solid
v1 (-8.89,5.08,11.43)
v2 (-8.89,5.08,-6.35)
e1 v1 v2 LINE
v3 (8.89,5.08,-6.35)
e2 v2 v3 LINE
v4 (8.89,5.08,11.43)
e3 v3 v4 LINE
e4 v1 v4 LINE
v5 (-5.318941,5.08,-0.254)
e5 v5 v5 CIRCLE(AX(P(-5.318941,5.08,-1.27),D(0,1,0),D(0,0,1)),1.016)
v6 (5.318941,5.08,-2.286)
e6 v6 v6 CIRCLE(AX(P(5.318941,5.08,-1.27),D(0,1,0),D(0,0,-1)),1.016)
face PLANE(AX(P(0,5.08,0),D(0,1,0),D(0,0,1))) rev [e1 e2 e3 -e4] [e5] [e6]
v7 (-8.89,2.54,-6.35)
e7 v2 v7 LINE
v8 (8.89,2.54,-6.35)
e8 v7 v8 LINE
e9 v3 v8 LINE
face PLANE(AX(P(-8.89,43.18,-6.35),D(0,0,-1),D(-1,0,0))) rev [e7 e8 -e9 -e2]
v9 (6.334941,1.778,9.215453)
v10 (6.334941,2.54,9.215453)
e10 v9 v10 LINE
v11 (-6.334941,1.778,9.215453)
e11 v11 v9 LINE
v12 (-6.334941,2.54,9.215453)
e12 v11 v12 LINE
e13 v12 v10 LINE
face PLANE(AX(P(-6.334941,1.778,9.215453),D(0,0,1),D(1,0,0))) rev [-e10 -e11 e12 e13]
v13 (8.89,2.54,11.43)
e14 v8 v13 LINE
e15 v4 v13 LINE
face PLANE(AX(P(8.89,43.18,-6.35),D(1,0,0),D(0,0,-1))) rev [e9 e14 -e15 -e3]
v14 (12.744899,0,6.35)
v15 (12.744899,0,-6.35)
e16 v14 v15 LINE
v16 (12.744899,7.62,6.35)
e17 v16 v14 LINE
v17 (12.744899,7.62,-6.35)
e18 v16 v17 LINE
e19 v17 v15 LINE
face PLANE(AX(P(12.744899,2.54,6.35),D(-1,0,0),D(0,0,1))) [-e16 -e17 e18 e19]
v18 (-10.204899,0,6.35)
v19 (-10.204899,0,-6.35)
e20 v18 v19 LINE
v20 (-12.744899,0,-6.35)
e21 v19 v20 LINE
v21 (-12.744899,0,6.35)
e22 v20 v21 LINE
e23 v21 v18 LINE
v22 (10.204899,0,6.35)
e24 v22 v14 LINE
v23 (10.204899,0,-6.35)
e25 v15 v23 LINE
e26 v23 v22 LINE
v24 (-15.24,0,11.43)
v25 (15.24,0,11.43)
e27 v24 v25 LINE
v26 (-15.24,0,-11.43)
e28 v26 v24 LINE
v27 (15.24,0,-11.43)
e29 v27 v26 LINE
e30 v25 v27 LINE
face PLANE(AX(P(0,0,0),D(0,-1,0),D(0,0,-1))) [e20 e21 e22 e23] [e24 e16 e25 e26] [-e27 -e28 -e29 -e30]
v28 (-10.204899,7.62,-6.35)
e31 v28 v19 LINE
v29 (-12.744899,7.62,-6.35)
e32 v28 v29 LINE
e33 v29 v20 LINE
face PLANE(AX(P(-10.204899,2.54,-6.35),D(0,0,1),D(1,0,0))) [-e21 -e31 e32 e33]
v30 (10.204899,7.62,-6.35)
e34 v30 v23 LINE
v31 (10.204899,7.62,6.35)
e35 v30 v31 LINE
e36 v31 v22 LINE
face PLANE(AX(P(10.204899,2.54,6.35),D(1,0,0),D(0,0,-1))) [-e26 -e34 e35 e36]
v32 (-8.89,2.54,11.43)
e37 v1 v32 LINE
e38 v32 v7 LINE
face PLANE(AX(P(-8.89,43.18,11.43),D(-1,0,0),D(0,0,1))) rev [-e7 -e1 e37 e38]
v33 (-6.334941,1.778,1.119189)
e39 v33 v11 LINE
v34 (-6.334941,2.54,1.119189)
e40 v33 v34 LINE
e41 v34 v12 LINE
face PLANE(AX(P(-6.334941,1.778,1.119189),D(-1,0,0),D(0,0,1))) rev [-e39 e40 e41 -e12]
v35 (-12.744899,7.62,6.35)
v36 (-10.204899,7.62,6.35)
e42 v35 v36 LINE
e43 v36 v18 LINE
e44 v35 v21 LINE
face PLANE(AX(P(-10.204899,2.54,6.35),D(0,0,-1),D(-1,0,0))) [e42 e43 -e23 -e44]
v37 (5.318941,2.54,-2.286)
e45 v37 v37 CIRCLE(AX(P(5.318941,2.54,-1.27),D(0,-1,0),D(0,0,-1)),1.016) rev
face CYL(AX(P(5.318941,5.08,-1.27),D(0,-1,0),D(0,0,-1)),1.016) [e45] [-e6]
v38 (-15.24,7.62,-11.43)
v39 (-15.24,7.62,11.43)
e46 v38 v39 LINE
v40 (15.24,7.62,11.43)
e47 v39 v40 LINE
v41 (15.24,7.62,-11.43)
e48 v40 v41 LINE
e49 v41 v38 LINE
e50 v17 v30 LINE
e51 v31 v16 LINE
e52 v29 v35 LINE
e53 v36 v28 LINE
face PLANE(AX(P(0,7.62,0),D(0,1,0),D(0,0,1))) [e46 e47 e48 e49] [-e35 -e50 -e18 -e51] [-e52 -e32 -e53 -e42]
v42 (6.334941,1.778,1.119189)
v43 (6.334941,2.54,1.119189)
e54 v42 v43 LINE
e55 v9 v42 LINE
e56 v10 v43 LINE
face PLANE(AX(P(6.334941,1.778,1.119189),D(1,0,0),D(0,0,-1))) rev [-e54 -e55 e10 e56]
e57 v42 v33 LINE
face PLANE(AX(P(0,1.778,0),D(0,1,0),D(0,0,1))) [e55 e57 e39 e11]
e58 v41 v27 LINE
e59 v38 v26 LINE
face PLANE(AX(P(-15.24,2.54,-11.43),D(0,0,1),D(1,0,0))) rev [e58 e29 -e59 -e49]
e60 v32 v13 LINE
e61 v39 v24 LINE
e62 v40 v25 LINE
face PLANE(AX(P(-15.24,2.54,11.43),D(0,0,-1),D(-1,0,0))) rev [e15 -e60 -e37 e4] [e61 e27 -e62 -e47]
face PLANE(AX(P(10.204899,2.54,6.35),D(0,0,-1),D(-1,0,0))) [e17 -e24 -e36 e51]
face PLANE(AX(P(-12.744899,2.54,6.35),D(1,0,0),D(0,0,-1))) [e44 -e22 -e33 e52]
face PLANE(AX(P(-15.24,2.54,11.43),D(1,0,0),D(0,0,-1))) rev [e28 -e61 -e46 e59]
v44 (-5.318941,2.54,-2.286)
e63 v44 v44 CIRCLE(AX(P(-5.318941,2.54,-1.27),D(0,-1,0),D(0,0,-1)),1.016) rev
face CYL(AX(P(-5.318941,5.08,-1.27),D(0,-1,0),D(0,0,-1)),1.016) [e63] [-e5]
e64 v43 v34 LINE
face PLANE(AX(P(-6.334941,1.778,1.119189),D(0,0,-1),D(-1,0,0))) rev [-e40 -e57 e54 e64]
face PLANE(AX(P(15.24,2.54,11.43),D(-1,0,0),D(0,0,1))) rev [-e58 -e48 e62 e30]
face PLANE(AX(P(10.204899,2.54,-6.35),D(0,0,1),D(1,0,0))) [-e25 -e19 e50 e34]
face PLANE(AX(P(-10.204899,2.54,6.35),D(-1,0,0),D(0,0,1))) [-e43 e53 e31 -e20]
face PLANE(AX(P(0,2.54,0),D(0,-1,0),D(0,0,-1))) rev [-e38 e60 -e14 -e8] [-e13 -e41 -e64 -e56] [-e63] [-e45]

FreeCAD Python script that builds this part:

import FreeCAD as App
import Part
import Sketcher
Q = App.Units.Quantity

doc = App.newDocument("Part")
body = doc.addObject("PartDesign::Body", "Body")

# Sketch on XZ plane
sketch1 = body.newObject("Sketcher::SketchObject", "Sketch")
sketch1.AttachmentSupport = (doc.getObject("XZ_Plane"), [""])
sketch1.MapMode = "FlatFace"
sketch1.addGeometry([
    Part.LineSegment(App.Vector(-15.2, -11.4, 0), App.Vector(-15.2, 11.4, 0)),  # 0
    Part.LineSegment(App.Vector(-15.2, 11.4, 0), App.Vector(15.2, 11.4, 0)),  # 1
    Part.LineSegment(App.Vector(15.2, 11.4, 0), App.Vector(15.2, -11.4, 0)),  # 2
    Part.LineSegment(App.Vector(15.2, -11.4, 0), App.Vector(-15.2, -11.4, 0)),  # 3
    Part.LineSegment(App.Vector(-10.2, 6.3, 0), App.Vector(-12.7, 6.3, 0)),  # 4
    Part.LineSegment(App.Vector(-12.7, 6.3, 0), App.Vector(-12.7, -6.3, 0)),  # 5
    Part.LineSegment(App.Vector(-12.7, -6.3, 0), App.Vector(-10.2, -6.3, 0)),  # 6
    Part.LineSegment(App.Vector(-10.2, -6.3, 0), App.Vector(-10.2, 6.3, 0)),  # 7
    Part.LineSegment(App.Vector(12.7, 6.3, 0), App.Vector(10.2, 6.3, 0)),  # 8
    Part.LineSegment(App.Vector(10.2, 6.3, 0), App.Vector(10.2, -6.3, 0)),  # 9
    Part.LineSegment(App.Vector(10.2, -6.3, 0), App.Vector(12.7, -6.3, 0)),  # 10
    Part.LineSegment(App.Vector(12.7, -6.3, 0), App.Vector(12.7, 6.3, 0)),  # 11
], False)
sketch1.addConstraint([
    Sketcher.Constraint("Coincident", 0, 2, 1, 1),
    Sketcher.Constraint("Coincident", 1, 2, 2, 1),
    Sketcher.Constraint("Coincident", 2, 2, 3, 1),
    Sketcher.Constraint("Coincident", 3, 2, 0, 1),
    Sketcher.Constraint("Coincident", 4, 2, 5, 1),
    Sketcher.Constraint("Coincident", 5, 2, 6, 1),
    Sketcher.Constraint("Coincident", 6, 2, 7, 1),
    Sketcher.Constraint("Coincident", 7, 2, 4, 1),
    Sketcher.Constraint("Coincident", 8, 2, 9, 1),
    Sketcher.Constraint("Coincident", 9, 2, 10, 1),
    Sketcher.Constraint("Coincident", 10, 2, 11, 1),
    Sketcher.Constraint("Coincident", 11, 2, 8, 1),
    Sketcher.Constraint("Vertical", 0),
    Sketcher.Constraint("Horizontal", 1),
    Sketcher.Constraint("Vertical", 2),
    Sketcher.Constraint("Horizontal", 3),
    Sketcher.Constraint("Horizontal", 4),
    Sketcher.Constraint("Vertical", 5),
    Sketcher.Constraint("Horizontal", 6),
    Sketcher.Constraint("Vertical", 7),
    Sketcher.Constraint("Horizontal", 8),
    Sketcher.Constraint("Vertical", 9),
    Sketcher.Constraint("Horizontal", 10),
    Sketcher.Constraint("Vertical", 11),
    Sketcher.Constraint("Symmetric", 0, 2, 2, 2, -1, 1),
    Sketcher.Constraint("Symmetric", 6, 2, 8, 2, -1, 1),
    Sketcher.Constraint("Symmetric", 4, 2, 10, 2, -1, 1),
    Sketcher.Constraint("Horizontal", 7, 2, 8, 2),
    Sketcher.Constraint("DistanceX", 1, 1, 1, 2, Q("1.2 in")),
    Sketcher.Constraint("DistanceX", 4, 2, 4, 1, Q("0.1 in")),
    Sketcher.Constraint("DistanceY", 0, 1, 0, 2, Q("0.9 in")),
    Sketcher.Constraint("DistanceY", 5, 2, 5, 1, Q("0.5 in")),
    Sketcher.Constraint("DistanceX", 4, 2, -1, 1, 12.744899),
])
pad1 = body.newObject("PartDesign::Pad", "Pad")
pad1.Profile = sketch1
pad1.Length = Q("0.1 in")
pad1.Reversed = True

# Sketch on XZ plane
sketch2 = body.newObject("Sketcher::SketchObject", "Sketch001")
sketch2.AttachmentSupport = (doc.getObject("XZ_Plane"), [""])
sketch2.MapMode = "FlatFace"
sketch2.AttachmentOffset = App.Placement(App.Vector(0, 0, -0.1 * 25.4), App.Rotation())
sketch2.addGeometry([
    Part.Circle(App.Vector(-5.3, -1.3, 0), App.Vector(0, 0, 1), 1),
    Part.Circle(App.Vector(5.3, -1.3, 0), App.Vector(0, 0, 1), 1),
], False)
sketch2.addConstraint([
    Sketcher.Constraint("Equal", 0, 1),
    Sketcher.Constraint("Symmetric", 0, 3, 1, 3, -2),
    Sketcher.Constraint("Diameter", 0, Q("0.08 in")),
    Sketcher.Constraint("DistanceY", 0, 3, -1, 1, Q("0.05 in")),
    Sketcher.Constraint("DistanceX", 0, 3, -1, 1, 5.318941),
])
pad2 = body.newObject("PartDesign::Pad", "Pad001")
pad2.Profile = sketch2
pad2.Length = Q("0.1 in")
pad2.Reversed = True

# Sketch on XZ plane
sketch3 = body.newObject("Sketcher::SketchObject", "Sketch002")
sketch3.AttachmentSupport = (doc.getObject("XZ_Plane"), [""])
sketch3.MapMode = "FlatFace"
sketch3.AttachmentOffset = App.Placement(App.Vector(0, 0, -0.2 * 25.4), App.Rotation())
sketch3.addGeometry([
    Part.LineSegment(App.Vector(-15.2, -11.4, 0), App.Vector(-15.2, 11.4, 0)),  # 0
    Part.LineSegment(App.Vector(-15.2, 11.4, 0), App.Vector(15.2, 11.4, 0)),  # 1
    Part.LineSegment(App.Vector(15.2, 11.4, 0), App.Vector(15.2, -11.4, 0)),  # 2
    Part.LineSegment(App.Vector(15.2, -11.4, 0), App.Vector(-15.2, -11.4, 0)),  # 3
    Part.LineSegment(App.Vector(-10.2, 6.3, 0), App.Vector(-12.7, 6.3, 0)),  # 4
    Part.LineSegment(App.Vector(-12.7, 6.3, 0), App.Vector(-12.7, -6.3, 0)),  # 5
    Part.LineSegment(App.Vector(-12.7, -6.3, 0), App.Vector(-10.2, -6.3, 0)),  # 6
    Part.LineSegment(App.Vector(-10.2, -6.3, 0), App.Vector(-10.2, 6.3, 0)),  # 7
    Part.LineSegment(App.Vector(12.7, 6.3, 0), App.Vector(10.2, 6.3, 0)),  # 8
    Part.LineSegment(App.Vector(10.2, 6.3, 0), App.Vector(10.2, -6.3, 0)),  # 9
    Part.LineSegment(App.Vector(10.2, -6.3, 0), App.Vector(12.7, -6.3, 0)),  # 10
    Part.LineSegment(App.Vector(12.7, -6.3, 0), App.Vector(12.7, 6.3, 0)),  # 11
], False)
sketch3.addConstraint([
    Sketcher.Constraint("Coincident", 0, 2, 1, 1),
    Sketcher.Constraint("Coincident", 1, 2, 2, 1),
    Sketcher.Constraint("Coincident", 2, 2, 3, 1),
    Sketcher.Constraint("Coincident", 3, 2, 0, 1),
    Sketcher.Constraint("Coincident", 4, 2, 5, 1),
    Sketcher.Constraint("Coincident", 5, 2, 6, 1),
    Sketcher.Constraint("Coincident", 6, 2, 7, 1),
    Sketcher.Constraint("Coincident", 7, 2, 4, 1),
    Sketcher.Constraint("Coincident", 8, 2, 9, 1),
    Sketcher.Constraint("Coincident", 9, 2, 10, 1),
    Sketcher.Constraint("Coincident", 10, 2, 11, 1),
    Sketcher.Constraint("Coincident", 11, 2, 8, 1),
    Sketcher.Constraint("Vertical", 0),
    Sketcher.Constraint("Horizontal", 1),
    Sketcher.Constraint("Vertical", 2),
    Sketcher.Constraint("Horizontal", 3),
    Sketcher.Constraint("Horizontal", 4),
    Sketcher.Constraint("Vertical", 5),
    Sketcher.Constraint("Horizontal", 6),
    Sketcher.Constraint("Vertical", 7),
    Sketcher.Constraint("Horizontal", 8),
    Sketcher.Constraint("Vertical", 9),
    Sketcher.Constraint("Horizontal", 10),
    Sketcher.Constraint("Vertical", 11),
    Sketcher.Constraint("Symmetric", 0, 2, 2, 2, -1, 1),
    Sketcher.Constraint("Symmetric", 6, 2, 8, 2, -1, 1),
    Sketcher.Constraint("Symmetric", 4, 2, 10, 2, -1, 1),
    Sketcher.Constraint("Horizontal", 7, 2, 8, 2),
    Sketcher.Constraint("DistanceX", 1, 1, 1, 2, Q("1.2 in")),
    Sketcher.Constraint("DistanceX", 4, 2, 4, 1, Q("0.1 in")),
    Sketcher.Constraint("DistanceY", 0, 1, 0, 2, Q("0.9 in")),
    Sketcher.Constraint("DistanceY", 5, 2, 5, 1, Q("0.5 in")),
    Sketcher.Constraint("DistanceX", 4, 2, -1, 1, 12.744899),
])
pad3 = body.newObject("PartDesign::Pad", "Pad002")
pad3.Profile = sketch3
pad3.Length = Q("0.1 in")
pad3.Reversed = True

# Sketch on XZ plane
sketch4 = body.newObject("Sketcher::SketchObject", "Sketch003")
sketch4.AttachmentSupport = (doc.getObject("XZ_Plane"), [""])
sketch4.MapMode = "FlatFace"
sketch4.AttachmentOffset = App.Placement(App.Vector(0, 0, -0.1 * 25.4), App.Rotation())
sketch4.addGeometry([
    Part.LineSegment(App.Vector(-15.2, -11.4, 0), App.Vector(-15.2, 11.4, 0)),  # 0
    Part.LineSegment(App.Vector(-15.2, 11.4, 0), App.Vector(-8.9, 11.4, 0)),  # 1
    Part.LineSegment(App.Vector(-8.9, 11.4, 0), App.Vector(-8.9, -6.3, 0)),  # 2
    Part.LineSegment(App.Vector(-8.9, -6.3, 0), App.Vector(8.9, -6.3, 0)),  # 3
    Part.LineSegment(App.Vector(8.9, -6.3, 0), App.Vector(8.9, 11.4, 0)),  # 4
    Part.LineSegment(App.Vector(8.9, 11.4, 0), App.Vector(15.2, 11.4, 0)),  # 5
    Part.LineSegment(App.Vector(15.2, 11.4, 0), App.Vector(15.2, -11.4, 0)),  # 6
    Part.LineSegment(App.Vector(15.2, -11.4, 0), App.Vector(-15.2, -11.4, 0)),  # 7
    Part.LineSegment(App.Vector(10.2, 6.3, 0), App.Vector(10.2, -6.3, 0)),  # 8
    Part.LineSegment(App.Vector(10.2, -6.3, 0), App.Vector(12.7, -6.3, 0)),  # 9
    Part.LineSegment(App.Vector(12.7, -6.3, 0), App.Vector(12.7, 6.3, 0)),  # 10
    Part.LineSegment(App.Vector(12.7, 6.3, 0), App.Vector(10.2, 6.3, 0)),  # 11
    Part.LineSegment(App.Vector(-12.7, 6.3, 0), App.Vector(-12.7, -6.3, 0)),  # 12
    Part.LineSegment(App.Vector(-12.7, -6.3, 0), App.Vector(-10.2, -6.3, 0)),  # 13
    Part.LineSegment(App.Vector(-10.2, -6.3, 0), App.Vector(-10.2, 6.3, 0)),  # 14
    Part.LineSegment(App.Vector(-10.2, 6.3, 0), App.Vector(-12.7, 6.3, 0)),  # 15
], False)
sketch4.addConstraint([
    Sketcher.Constraint("Coincident", 0, 2, 1, 1),
    Sketcher.Constraint("Coincident", 1, 2, 2, 1),
    Sketcher.Constraint("Coincident", 2, 2, 3, 1),
    Sketcher.Constraint("Coincident", 3, 2, 4, 1),
    Sketcher.Constraint("Coincident", 4, 2, 5, 1),
    Sketcher.Constraint("Coincident", 5, 2, 6, 1),
    Sketcher.Constraint("Coincident", 6, 2, 7, 1),
    Sketcher.Constraint("Coincident", 7, 2, 0, 1),
    Sketcher.Constraint("Coincident", 8, 2, 9, 1),
    Sketcher.Constraint("Coincident", 9, 2, 10, 1),
    Sketcher.Constraint("Coincident", 10, 2, 11, 1),
    Sketcher.Constraint("Coincident", 11, 2, 8, 1),
    Sketcher.Constraint("Coincident", 12, 2, 13, 1),
    Sketcher.Constraint("Coincident", 13, 2, 14, 1),
    Sketcher.Constraint("Coincident", 14, 2, 15, 1),
    Sketcher.Constraint("Coincident", 15, 2, 12, 1),
    Sketcher.Constraint("Vertical", 0),
    Sketcher.Constraint("Horizontal", 1),
    Sketcher.Constraint("Vertical", 2),
    Sketcher.Constraint("Horizontal", 3),
    Sketcher.Constraint("Vertical", 4),
    Sketcher.Constraint("Horizontal", 5),
    Sketcher.Constraint("Vertical", 6),
    Sketcher.Constraint("Horizontal", 7),
    Sketcher.Constraint("Vertical", 8),
    Sketcher.Constraint("Horizontal", 9),
    Sketcher.Constraint("Vertical", 10),
    Sketcher.Constraint("Horizontal", 11),
    Sketcher.Constraint("Vertical", 12),
    Sketcher.Constraint("Horizontal", 13),
    Sketcher.Constraint("Vertical", 14),
    Sketcher.Constraint("Horizontal", 15),
    Sketcher.Constraint("Symmetric", 0, 2, 6, 2, -1, 1),
    Sketcher.Constraint("Symmetric", 10, 2, 12, 2, -1, 1),
    Sketcher.Constraint("Symmetric", 8, 2, 14, 2, -1, 1),
    Sketcher.Constraint("Symmetric", 1, 2, 4, 2, -2),
    Sketcher.Constraint("Horizontal", 3, 2, 8, 2),
    Sketcher.Constraint("Horizontal", 9, 2, 12, 2),
    Sketcher.Constraint("Equal", 3, 2),
    Sketcher.Constraint("DistanceX", 3, 1, 3, 2, Q("0.7 in")),
    Sketcher.Constraint("DistanceX", 7, 2, 7, 1, Q("1.2 in")),
    Sketcher.Constraint("DistanceX", 9, 1, 9, 2, Q("0.1 in")),
    Sketcher.Constraint("DistanceY", 0, 1, 0, 2, Q("0.9 in")),
    Sketcher.Constraint("DistanceX", -1, 1, 8, 2, 10.204899),
])
pad4 = body.newObject("PartDesign::Pad", "Pad003")
pad4.Profile = sketch4
pad4.Length = Q("0.1 in")
pad4.Reversed = True

# Sketch on XZ plane
sketch5 = body.newObject("Sketcher::SketchObject", "Sketch004")
sketch5.AttachmentSupport = (doc.getObject("XZ_Plane"), [""])
sketch5.MapMode = "FlatFace"
sketch5.AttachmentOffset = App.Placement(App.Vector(0, 0, -0.1 * 25.4), App.Rotation())
sketch5.addGeometry([
    Part.LineSegment(App.Vector(-6, 1, 0), App.Vector(-6, 9, 0)),
    Part.LineSegment(App.Vector(-6, 9, 0), App.Vector(6, 9, 0)),
    Part.LineSegment(App.Vector(6, 9, 0), App.Vector(6, 1, 0)),
    Part.LineSegment(App.Vector(6, 1, 0), App.Vector(-6, 1, 0)),
], False)
sketch5.addConstraint([
    Sketcher.Constraint("Coincident", 0, 2, 1, 1),
    Sketcher.Constraint("Coincident", 1, 2, 2, 1),
    Sketcher.Constraint("Coincident", 2, 2, 3, 1),
    Sketcher.Constraint("Coincident", 3, 2, 0, 1),
    Sketcher.Constraint("Vertical", 0),
    Sketcher.Constraint("Horizontal", 1),
    Sketcher.Constraint("Vertical", 2),
    Sketcher.Constraint("Horizontal", 3),
    Sketcher.Constraint("DistanceX", 1, 1, 1, 2, 12.669882),
    Sketcher.Constraint("DistanceY", 0, 1, 0, 2, 8.096264),
    Sketcher.Constraint("DistanceX", 0, 2, -1, 1, 6.334941),
    Sketcher.Constraint("DistanceY", -1, 1, 2, 2, 1.119189),
])
pocket1 = body.newObject("PartDesign::Pocket", "Pocket")
pocket1.Profile = sketch5
pocket1.Length = Q("0.03 in")
pocket1.Reversed = True

doc.recompute()
